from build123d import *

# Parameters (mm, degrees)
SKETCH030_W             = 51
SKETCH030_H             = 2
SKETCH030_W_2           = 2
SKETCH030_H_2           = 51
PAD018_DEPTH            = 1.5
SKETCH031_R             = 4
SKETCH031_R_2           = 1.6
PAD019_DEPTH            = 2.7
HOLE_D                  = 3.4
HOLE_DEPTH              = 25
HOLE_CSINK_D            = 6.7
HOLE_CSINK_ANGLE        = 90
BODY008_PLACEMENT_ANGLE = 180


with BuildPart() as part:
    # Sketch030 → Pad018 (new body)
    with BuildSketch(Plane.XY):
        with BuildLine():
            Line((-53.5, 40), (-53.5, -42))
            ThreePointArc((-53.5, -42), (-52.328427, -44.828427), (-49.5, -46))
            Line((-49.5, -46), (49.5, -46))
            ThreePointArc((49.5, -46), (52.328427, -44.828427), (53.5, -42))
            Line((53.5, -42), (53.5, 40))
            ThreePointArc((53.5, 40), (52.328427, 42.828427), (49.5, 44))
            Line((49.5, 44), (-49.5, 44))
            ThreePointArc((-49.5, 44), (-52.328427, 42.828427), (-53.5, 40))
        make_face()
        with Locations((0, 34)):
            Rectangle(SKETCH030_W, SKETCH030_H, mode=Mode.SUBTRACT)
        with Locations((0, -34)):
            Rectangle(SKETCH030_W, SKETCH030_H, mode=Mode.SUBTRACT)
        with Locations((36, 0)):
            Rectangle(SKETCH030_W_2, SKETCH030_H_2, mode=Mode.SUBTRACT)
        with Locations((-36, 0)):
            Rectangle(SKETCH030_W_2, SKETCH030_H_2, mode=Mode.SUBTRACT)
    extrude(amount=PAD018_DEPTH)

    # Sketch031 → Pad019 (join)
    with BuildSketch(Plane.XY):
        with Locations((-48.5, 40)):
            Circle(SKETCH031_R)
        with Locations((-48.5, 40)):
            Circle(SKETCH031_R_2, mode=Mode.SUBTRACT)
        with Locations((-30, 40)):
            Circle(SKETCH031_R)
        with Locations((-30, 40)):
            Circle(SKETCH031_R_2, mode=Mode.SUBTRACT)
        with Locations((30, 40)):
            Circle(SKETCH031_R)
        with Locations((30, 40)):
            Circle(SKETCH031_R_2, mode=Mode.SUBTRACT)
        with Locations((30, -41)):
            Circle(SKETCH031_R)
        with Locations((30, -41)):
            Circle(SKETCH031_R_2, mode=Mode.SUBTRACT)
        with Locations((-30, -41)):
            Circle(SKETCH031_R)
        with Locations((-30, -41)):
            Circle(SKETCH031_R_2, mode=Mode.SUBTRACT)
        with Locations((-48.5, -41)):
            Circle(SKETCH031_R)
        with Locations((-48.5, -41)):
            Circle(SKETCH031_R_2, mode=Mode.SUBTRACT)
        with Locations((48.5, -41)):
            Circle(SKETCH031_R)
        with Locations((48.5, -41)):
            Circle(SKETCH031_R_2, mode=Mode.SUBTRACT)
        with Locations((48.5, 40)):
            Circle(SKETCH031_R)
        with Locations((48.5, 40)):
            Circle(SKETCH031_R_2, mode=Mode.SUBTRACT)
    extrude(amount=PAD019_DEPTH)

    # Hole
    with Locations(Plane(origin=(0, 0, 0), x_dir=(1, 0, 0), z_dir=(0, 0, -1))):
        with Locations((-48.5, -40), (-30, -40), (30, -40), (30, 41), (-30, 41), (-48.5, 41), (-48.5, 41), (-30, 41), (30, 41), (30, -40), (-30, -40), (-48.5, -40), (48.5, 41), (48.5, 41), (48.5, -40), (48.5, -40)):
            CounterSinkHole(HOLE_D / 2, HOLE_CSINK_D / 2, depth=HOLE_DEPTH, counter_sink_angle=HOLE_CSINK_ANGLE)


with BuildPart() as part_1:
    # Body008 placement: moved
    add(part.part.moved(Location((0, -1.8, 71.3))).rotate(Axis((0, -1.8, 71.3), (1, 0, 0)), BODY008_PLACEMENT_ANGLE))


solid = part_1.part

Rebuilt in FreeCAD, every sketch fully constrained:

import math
import FreeCAD as App
import Part
import Sketcher

V = App.Vector


def add_polygon(sketch, points):
    """Adds a closed chain of lines whose ends are joined by coincident constraints."""
    first, n = sketch.GeometryCount, len(points)
    for a, b in zip(points, points[1:] + points[:1]):
        sketch.addGeometry(Part.LineSegment(App.Vector(*a, 0), App.Vector(*b, 0)), False)
    for i in range(n):
        sketch.addConstraint(Sketcher.Constraint("Coincident", first + i, 2, first + (i + 1) % n, 1))

doc = App.newDocument("Part")
body = doc.addObject("PartDesign::Body", "Body")

sketch1 = body.newObject("Sketcher::SketchObject", "Sketch")
sketch1.AttachmentSupport = (doc.getObject("XY_Plane"), [""])
sketch1.MapMode = "FlatFace"
sketch1.addGeometry(Part.LineSegment(V(-53.5, 40, 0), V(-53.5, -42, 0)), False)
sketch1.addGeometry(Part.ArcOfCircle(Part.Circle(V(-49.5, -42, 0), V(0, 0, 1), 4), math.radians(-180), math.radians(-90)), False)
sketch1.addGeometry(Part.LineSegment(V(-49.5, -46, 0), V(49.5, -46, 0)), False)
sketch1.addGeometry(Part.ArcOfCircle(Part.Circle(V(49.5, -42, 0), V(0, 0, 1), 4), math.radians(-90), math.radians(0)), False)
sketch1.addGeometry(Part.LineSegment(V(53.5, -42, 0), V(53.5, 40, 0)), False)
sketch1.addGeometry(Part.ArcOfCircle(Part.Circle(V(49.5, 40, 0), V(0, 0, 1), 4), math.radians(0), math.radians(90)), False)
sketch1.addGeometry(Part.LineSegment(V(49.5, 44, 0), V(-49.5, 44, 0)), False)
sketch1.addGeometry(Part.ArcOfCircle(Part.Circle(V(-49.5, 40, 0), V(0, 0, 1), 4), math.radians(90), math.radians(180)), False)
add_polygon(sketch1, [(25.5, -35), (-25.5, -35), (-25.5, -33), (25.5, -33)])
add_polygon(sketch1, [(-35, -25.5), (-37, -25.5), (-37, 25.5), (-35, 25.5)])
add_polygon(sketch1, [(37, -25.5), (35, -25.5), (35, 25.5), (37, 25.5)])
add_polygon(sketch1, [(25.5, 33), (-25.5, 33), (-25.5, 35), (25.5, 35)])
sketch1.addConstraint([
    Sketcher.Constraint("Tangent", 0, 2, 1, 1),
    Sketcher.Constraint("Tangent", 1, 2, 2, 1),
    Sketcher.Constraint("Tangent", 2, 2, 3, 1),
    Sketcher.Constraint("Tangent", 3, 2, 4, 1),
    Sketcher.Constraint("Tangent", 4, 2, 5, 1),
    Sketcher.Constraint("Tangent", 5, 2, 6, 1),
    Sketcher.Constraint("Tangent", 6, 2, 7, 1),
    Sketcher.Constraint("Tangent", 7, 2, 0, 1),
    Sketcher.Constraint("Vertical", 0),
    Sketcher.Constraint("Horizontal", 2),
    Sketcher.Constraint("Vertical", 4),
    Sketcher.Constraint("Horizontal", 6),
    Sketcher.Constraint("Horizontal", 8),
    Sketcher.Constraint("Vertical", 9),
    Sketcher.Constraint("Horizontal", 10),
    Sketcher.Constraint("Vertical", 11),
    Sketcher.Constraint("Horizontal", 12),
    Sketcher.Constraint("Vertical", 13),
    Sketcher.Constraint("Horizontal", 14),
    Sketcher.Constraint("Vertical", 15),
    Sketcher.Constraint("Horizontal", 16),
    Sketcher.Constraint("Vertical", 17),
    Sketcher.Constraint("Horizontal", 18),
    Sketcher.Constraint("Vertical", 19),
    Sketcher.Constraint("Horizontal", 20),
    Sketcher.Constraint("Vertical", 21),
    Sketcher.Constraint("Horizontal", 22),
    Sketcher.Constraint("Vertical", 23),
    Sketcher.Constraint("Equal", 1, 3),
    Sketcher.Constraint("Equal", 3, 5),
    Sketcher.Constraint("Equal", 5, 7),
    Sketcher.Constraint("Symmetric", 14, 2, 16, 2, -1, 1),
    Sketcher.Constraint("Symmetric", 12, 2, 18, 2, -1, 1),
    Sketcher.Constraint("Symmetric", 10, 2, 20, 2, -1, 1),
    Sketcher.Constraint("Symmetric", 8, 2, 22, 2, -1, 1),
    Sketcher.Constraint("Horizontal", 15, 2, 16, 2),
    Sketcher.Constraint("Vertical", 9, 2, 20, 2),
    Sketcher.Constraint("Equal", 18, 9),
    Sketcher.Constraint("Equal", 22, 13),
    Sketcher.Constraint("Radius", 1, 4.0),
    Sketcher.Constraint("DistanceX", 2, 1, 2, 2, 99.0),
    Sketcher.Constraint("DistanceX", 8, 2, 8, 1, 51.0),
    Sketcher.Constraint("DistanceX", 12, 2, 12, 1, 2.0),
    Sketcher.Constraint("DistanceY", 0, 2, 0, 1, 82.0),
    Sketcher.Constraint("DistanceY", 1, 3, -1, 1, 42.0),
    Sketcher.Constraint("DistanceY", 8, 2, -1, 1, 35.0),
    Sketcher.Constraint("DistanceX", 12, 2, -1, 1, 37.0),
    Sketcher.Constraint("DistanceX", 1, 3, 8, 2, 24.0),
])
pad1 = body.newObject("PartDesign::Pad", "Pad")
pad1.Profile = sketch1
pad1.Length = 1.5

sketch2 = body.newObject("Sketcher::SketchObject", "Sketch001")
sketch2.AttachmentSupport = (doc.getObject("XY_Plane"), [""])
sketch2.MapMode = "FlatFace"
sketch2.addGeometry([
    Part.Circle(V(-48.5, 40, 0), V(0, 0, 1), 4),
    Part.Circle(V(-48.5, 40, 0), V(0, 0, 1), 1.6),
    Part.Circle(V(-30, 40, 0), V(0, 0, 1), 4),
    Part.Circle(V(-30, 40, 0), V(0, 0, 1), 1.6),
    Part.Circle(V(30, 40, 0), V(0, 0, 1), 4),
    Part.Circle(V(30, 40, 0), V(0, 0, 1), 1.6),
    Part.Circle(V(30, -41, 0), V(0, 0, 1), 4),
    Part.Circle(V(30, -41, 0), V(0, 0, 1), 1.6),
    Part.Circle(V(-30, -41, 0), V(0, 0, 1), 4),
    Part.Circle(V(-30, -41, 0), V(0, 0, 1), 1.6),
    Part.Circle(V(-48.5, -41, 0), V(0, 0, 1), 4),
    Part.Circle(V(-48.5, -41, 0), V(0, 0, 1), 1.6),
    Part.Circle(V(48.5, -41, 0), V(0, 0, 1), 4),
    Part.Circle(V(48.5, -41, 0), V(0, 0, 1), 1.6),
    Part.Circle(V(48.5, 40, 0), V(0, 0, 1), 4),
    Part.Circle(V(48.5, 40, 0), V(0, 0, 1), 1.6),
], False)
sketch2.addConstraint([
    Sketcher.Constraint("Coincident", 1, 3, 0, 3),
    Sketcher.Constraint("Coincident", 3, 3, 2, 3),
    Sketcher.Constraint("Coincident", 5, 3, 4, 3),
    Sketcher.Constraint("Coincident", 7, 3, 6, 3),
    Sketcher.Constraint("Coincident", 9, 3, 8, 3),
    Sketcher.Constraint("Coincident", 11, 3, 10, 3),
    Sketcher.Constraint("Coincident", 13, 3, 12, 3),
    Sketcher.Constraint("Coincident", 15, 3, 14, 3),
    Sketcher.Constraint("Equal", 0, 2),
    Sketcher.Constraint("Equal", 1, 3),
    Sketcher.Constraint("Equal", 2, 4),
    Sketcher.Constraint("Equal", 3, 5),
    Sketcher.Constraint("Equal", 4, 6),
    Sketcher.Constraint("Equal", 5, 7),
    Sketcher.Constraint("Equal", 6, 8),
    Sketcher.Constraint("Equal", 7, 9),
    Sketcher.Constraint("Equal", 8, 10),
    Sketcher.Constraint("Equal", 9, 11),
    Sketcher.Constraint("Equal", 10, 12),
    Sketcher.Constraint("Equal", 11, 13),
    Sketcher.Constraint("Equal", 12, 14),
    Sketcher.Constraint("Equal", 13, 15),
    Sketcher.Constraint("Symmetric", 2, 3, 4, 3, -2),
    Sketcher.Constraint("Symmetric", 6, 3, 8, 3, -2),
    Sketcher.Constraint("Symmetric", 10, 3, 12, 3, -2),
    Sketcher.Constraint("Symmetric", 0, 3, 14, 3, -2),
    Sketcher.Constraint("Horizontal", 1, 3, 2, 3),
    Sketcher.Constraint("Horizontal", 9, 3, 10, 3),
    Sketcher.Constraint("Vertical", 5, 3, 6, 3),
    Sketcher.Constraint("Vertical", 1, 3, 10, 3),
    Sketcher.Constraint("Diameter", 0, 8.0),
    Sketcher.Constraint("Diameter", 1, 3.2),
    Sketcher.Constraint("DistanceY", -1, 1, 0, 3, 40.0),
    Sketcher.Constraint("DistanceX", 2, 3, -1, 1, 30.0),
    Sketcher.Constraint("DistanceY", 6, 3, -1, 1, 41.0),
    Sketcher.Constraint("DistanceX", 0, 3, -1, 1, 48.5),
])
pad2 = body.newObject("PartDesign::Pad", "Pad001")
pad2.Profile = sketch2
pad2.Length = 2.7

sketch3 = body.newObject("Sketcher::SketchObject", "Sketch002")
sketch3.AttachmentSupport = (doc.getObject("XY_Plane"), [""])
sketch3.MapMode = "FlatFace"
sketch3.addGeometry([
    Part.Circle(V(-48.5, 40, 0), V(0, 0, 1), 1.7),
    Part.Circle(V(-30, 40, 0), V(0, 0, 1), 1.7),
    Part.Circle(V(30, 40, 0), V(0, 0, 1), 1.7),
    Part.Circle(V(30, -41, 0), V(0, 0, 1), 1.7),
    Part.Circle(V(-30, -41, 0), V(0, 0, 1), 1.7),
    Part.Circle(V(-48.5, -41, 0), V(0, 0, 1), 1.7),
    Part.Circle(V(-48.5, -41, 0), V(0, 0, 1), 1.7),
    Part.Circle(V(-30, -41, 0), V(0, 0, 1), 1.7),
    Part.Circle(V(30, -41, 0), V(0, 0, 1), 1.7),
    Part.Circle(V(30, 40, 0), V(0, 0, 1), 1.7),
    Part.Circle(V(-30, 40, 0), V(0, 0, 1), 1.7),
    Part.Circle(V(-48.5, 40, 0), V(0, 0, 1), 1.7),
    Part.Circle(V(48.5, -41, 0), V(0, 0, 1), 1.7),
    Part.Circle(V(48.5, -41, 0), V(0, 0, 1), 1.7),
    Part.Circle(V(48.5, 40, 0), V(0, 0, 1), 1.7),
    Part.Circle(V(48.5, 40, 0), V(0, 0, 1), 1.7),
], False)
sketch3.addConstraint([
    Sketcher.Constraint("Coincident", 6, 3, 5, 3),
    Sketcher.Constraint("Coincident", 7, 3, 4, 3),
    Sketcher.Constraint("Coincident", 8, 3, 3, 3),
    Sketcher.Constraint("Coincident", 9, 3, 2, 3),
    Sketcher.Constraint("Coincident", 10, 3, 1, 3),
    Sketcher.Constraint("Coincident", 11, 3, 0, 3),
    Sketcher.Constraint("Coincident", 13, 3, 12, 3),
    Sketcher.Constraint("Coincident", 15, 3, 14, 3),
    Sketcher.Constraint("Equal", 0, 1),
    Sketcher.Constraint("Equal", 1, 2),
    Sketcher.Constraint("Equal", 2, 3),
    Sketcher.Constraint("Equal", 3, 4),
    Sketcher.Constraint("Equal", 4, 5),
    Sketcher.Constraint("Equal", 5, 6),
    Sketcher.Constraint("Equal", 6, 7),
    Sketcher.Constraint("Equal", 7, 8),
    Sketcher.Constraint("Equal", 8, 9),
    Sketcher.Constraint("Equal", 9, 10),
    Sketcher.Constraint("Equal", 10, 11),
    Sketcher.Constraint("Equal", 11, 12),
    Sketcher.Constraint("Equal", 12, 13),
    Sketcher.Constraint("Equal", 13, 14),
    Sketcher.Constraint("Equal", 14, 15),
    Sketcher.Constraint("Symmetric", 1, 3, 2, 3, -2),
    Sketcher.Constraint("Symmetric", 3, 3, 4, 3, -2),
    Sketcher.Constraint("Symmetric", 5, 3, 12, 3, -2),
    Sketcher.Constraint("Symmetric", 0, 3, 14, 3, -2),
    Sketcher.Constraint("Horizontal", 0, 3, 1, 3),
    Sketcher.Constraint("Horizontal", 4, 3, 5, 3),
    Sketcher.Constraint("Vertical", 2, 3, 3, 3),
    Sketcher.Constraint("Vertical", 0, 3, 5, 3),
    Sketcher.Constraint("Diameter", 0, 3.4),
    Sketcher.Constraint("DistanceY", -1, 1, 0, 3, 40.0),
    Sketcher.Constraint("DistanceX", 1, 3, -1, 1, 30.0),
    Sketcher.Constraint("DistanceY", 3, 3, -1, 1, 41.0),
    Sketcher.Constraint("DistanceX", 0, 3, -1, 1, 48.5),
])
doc.recompute()
hole = body.newObject("PartDesign::Hole", "Hole")
hole.Profile = sketch3
hole.ThreadType = "None"
hole.Diameter = 3.4
hole.DepthType = "Dimension"
hole.Depth = 25
hole.DrillPoint = "Flat"
hole.HoleCutType = "Countersink"
hole.HoleCutDiameter = 6.7
hole.HoleCutCountersinkAngle = 90
hole.Reversed = True
body2 = doc.addObject("PartDesign::Body", "Body001")
doc.recompute()

body.Placement = App.Placement(V(0, -1.8, 71.3), App.Rotation(V(1, 0, 0), 180))
boolean = body2.newObject("PartDesign::Boolean", "Boolean")
boolean.Type = "Fuse"
boolean.addObjects([body])

doc.recompute()
